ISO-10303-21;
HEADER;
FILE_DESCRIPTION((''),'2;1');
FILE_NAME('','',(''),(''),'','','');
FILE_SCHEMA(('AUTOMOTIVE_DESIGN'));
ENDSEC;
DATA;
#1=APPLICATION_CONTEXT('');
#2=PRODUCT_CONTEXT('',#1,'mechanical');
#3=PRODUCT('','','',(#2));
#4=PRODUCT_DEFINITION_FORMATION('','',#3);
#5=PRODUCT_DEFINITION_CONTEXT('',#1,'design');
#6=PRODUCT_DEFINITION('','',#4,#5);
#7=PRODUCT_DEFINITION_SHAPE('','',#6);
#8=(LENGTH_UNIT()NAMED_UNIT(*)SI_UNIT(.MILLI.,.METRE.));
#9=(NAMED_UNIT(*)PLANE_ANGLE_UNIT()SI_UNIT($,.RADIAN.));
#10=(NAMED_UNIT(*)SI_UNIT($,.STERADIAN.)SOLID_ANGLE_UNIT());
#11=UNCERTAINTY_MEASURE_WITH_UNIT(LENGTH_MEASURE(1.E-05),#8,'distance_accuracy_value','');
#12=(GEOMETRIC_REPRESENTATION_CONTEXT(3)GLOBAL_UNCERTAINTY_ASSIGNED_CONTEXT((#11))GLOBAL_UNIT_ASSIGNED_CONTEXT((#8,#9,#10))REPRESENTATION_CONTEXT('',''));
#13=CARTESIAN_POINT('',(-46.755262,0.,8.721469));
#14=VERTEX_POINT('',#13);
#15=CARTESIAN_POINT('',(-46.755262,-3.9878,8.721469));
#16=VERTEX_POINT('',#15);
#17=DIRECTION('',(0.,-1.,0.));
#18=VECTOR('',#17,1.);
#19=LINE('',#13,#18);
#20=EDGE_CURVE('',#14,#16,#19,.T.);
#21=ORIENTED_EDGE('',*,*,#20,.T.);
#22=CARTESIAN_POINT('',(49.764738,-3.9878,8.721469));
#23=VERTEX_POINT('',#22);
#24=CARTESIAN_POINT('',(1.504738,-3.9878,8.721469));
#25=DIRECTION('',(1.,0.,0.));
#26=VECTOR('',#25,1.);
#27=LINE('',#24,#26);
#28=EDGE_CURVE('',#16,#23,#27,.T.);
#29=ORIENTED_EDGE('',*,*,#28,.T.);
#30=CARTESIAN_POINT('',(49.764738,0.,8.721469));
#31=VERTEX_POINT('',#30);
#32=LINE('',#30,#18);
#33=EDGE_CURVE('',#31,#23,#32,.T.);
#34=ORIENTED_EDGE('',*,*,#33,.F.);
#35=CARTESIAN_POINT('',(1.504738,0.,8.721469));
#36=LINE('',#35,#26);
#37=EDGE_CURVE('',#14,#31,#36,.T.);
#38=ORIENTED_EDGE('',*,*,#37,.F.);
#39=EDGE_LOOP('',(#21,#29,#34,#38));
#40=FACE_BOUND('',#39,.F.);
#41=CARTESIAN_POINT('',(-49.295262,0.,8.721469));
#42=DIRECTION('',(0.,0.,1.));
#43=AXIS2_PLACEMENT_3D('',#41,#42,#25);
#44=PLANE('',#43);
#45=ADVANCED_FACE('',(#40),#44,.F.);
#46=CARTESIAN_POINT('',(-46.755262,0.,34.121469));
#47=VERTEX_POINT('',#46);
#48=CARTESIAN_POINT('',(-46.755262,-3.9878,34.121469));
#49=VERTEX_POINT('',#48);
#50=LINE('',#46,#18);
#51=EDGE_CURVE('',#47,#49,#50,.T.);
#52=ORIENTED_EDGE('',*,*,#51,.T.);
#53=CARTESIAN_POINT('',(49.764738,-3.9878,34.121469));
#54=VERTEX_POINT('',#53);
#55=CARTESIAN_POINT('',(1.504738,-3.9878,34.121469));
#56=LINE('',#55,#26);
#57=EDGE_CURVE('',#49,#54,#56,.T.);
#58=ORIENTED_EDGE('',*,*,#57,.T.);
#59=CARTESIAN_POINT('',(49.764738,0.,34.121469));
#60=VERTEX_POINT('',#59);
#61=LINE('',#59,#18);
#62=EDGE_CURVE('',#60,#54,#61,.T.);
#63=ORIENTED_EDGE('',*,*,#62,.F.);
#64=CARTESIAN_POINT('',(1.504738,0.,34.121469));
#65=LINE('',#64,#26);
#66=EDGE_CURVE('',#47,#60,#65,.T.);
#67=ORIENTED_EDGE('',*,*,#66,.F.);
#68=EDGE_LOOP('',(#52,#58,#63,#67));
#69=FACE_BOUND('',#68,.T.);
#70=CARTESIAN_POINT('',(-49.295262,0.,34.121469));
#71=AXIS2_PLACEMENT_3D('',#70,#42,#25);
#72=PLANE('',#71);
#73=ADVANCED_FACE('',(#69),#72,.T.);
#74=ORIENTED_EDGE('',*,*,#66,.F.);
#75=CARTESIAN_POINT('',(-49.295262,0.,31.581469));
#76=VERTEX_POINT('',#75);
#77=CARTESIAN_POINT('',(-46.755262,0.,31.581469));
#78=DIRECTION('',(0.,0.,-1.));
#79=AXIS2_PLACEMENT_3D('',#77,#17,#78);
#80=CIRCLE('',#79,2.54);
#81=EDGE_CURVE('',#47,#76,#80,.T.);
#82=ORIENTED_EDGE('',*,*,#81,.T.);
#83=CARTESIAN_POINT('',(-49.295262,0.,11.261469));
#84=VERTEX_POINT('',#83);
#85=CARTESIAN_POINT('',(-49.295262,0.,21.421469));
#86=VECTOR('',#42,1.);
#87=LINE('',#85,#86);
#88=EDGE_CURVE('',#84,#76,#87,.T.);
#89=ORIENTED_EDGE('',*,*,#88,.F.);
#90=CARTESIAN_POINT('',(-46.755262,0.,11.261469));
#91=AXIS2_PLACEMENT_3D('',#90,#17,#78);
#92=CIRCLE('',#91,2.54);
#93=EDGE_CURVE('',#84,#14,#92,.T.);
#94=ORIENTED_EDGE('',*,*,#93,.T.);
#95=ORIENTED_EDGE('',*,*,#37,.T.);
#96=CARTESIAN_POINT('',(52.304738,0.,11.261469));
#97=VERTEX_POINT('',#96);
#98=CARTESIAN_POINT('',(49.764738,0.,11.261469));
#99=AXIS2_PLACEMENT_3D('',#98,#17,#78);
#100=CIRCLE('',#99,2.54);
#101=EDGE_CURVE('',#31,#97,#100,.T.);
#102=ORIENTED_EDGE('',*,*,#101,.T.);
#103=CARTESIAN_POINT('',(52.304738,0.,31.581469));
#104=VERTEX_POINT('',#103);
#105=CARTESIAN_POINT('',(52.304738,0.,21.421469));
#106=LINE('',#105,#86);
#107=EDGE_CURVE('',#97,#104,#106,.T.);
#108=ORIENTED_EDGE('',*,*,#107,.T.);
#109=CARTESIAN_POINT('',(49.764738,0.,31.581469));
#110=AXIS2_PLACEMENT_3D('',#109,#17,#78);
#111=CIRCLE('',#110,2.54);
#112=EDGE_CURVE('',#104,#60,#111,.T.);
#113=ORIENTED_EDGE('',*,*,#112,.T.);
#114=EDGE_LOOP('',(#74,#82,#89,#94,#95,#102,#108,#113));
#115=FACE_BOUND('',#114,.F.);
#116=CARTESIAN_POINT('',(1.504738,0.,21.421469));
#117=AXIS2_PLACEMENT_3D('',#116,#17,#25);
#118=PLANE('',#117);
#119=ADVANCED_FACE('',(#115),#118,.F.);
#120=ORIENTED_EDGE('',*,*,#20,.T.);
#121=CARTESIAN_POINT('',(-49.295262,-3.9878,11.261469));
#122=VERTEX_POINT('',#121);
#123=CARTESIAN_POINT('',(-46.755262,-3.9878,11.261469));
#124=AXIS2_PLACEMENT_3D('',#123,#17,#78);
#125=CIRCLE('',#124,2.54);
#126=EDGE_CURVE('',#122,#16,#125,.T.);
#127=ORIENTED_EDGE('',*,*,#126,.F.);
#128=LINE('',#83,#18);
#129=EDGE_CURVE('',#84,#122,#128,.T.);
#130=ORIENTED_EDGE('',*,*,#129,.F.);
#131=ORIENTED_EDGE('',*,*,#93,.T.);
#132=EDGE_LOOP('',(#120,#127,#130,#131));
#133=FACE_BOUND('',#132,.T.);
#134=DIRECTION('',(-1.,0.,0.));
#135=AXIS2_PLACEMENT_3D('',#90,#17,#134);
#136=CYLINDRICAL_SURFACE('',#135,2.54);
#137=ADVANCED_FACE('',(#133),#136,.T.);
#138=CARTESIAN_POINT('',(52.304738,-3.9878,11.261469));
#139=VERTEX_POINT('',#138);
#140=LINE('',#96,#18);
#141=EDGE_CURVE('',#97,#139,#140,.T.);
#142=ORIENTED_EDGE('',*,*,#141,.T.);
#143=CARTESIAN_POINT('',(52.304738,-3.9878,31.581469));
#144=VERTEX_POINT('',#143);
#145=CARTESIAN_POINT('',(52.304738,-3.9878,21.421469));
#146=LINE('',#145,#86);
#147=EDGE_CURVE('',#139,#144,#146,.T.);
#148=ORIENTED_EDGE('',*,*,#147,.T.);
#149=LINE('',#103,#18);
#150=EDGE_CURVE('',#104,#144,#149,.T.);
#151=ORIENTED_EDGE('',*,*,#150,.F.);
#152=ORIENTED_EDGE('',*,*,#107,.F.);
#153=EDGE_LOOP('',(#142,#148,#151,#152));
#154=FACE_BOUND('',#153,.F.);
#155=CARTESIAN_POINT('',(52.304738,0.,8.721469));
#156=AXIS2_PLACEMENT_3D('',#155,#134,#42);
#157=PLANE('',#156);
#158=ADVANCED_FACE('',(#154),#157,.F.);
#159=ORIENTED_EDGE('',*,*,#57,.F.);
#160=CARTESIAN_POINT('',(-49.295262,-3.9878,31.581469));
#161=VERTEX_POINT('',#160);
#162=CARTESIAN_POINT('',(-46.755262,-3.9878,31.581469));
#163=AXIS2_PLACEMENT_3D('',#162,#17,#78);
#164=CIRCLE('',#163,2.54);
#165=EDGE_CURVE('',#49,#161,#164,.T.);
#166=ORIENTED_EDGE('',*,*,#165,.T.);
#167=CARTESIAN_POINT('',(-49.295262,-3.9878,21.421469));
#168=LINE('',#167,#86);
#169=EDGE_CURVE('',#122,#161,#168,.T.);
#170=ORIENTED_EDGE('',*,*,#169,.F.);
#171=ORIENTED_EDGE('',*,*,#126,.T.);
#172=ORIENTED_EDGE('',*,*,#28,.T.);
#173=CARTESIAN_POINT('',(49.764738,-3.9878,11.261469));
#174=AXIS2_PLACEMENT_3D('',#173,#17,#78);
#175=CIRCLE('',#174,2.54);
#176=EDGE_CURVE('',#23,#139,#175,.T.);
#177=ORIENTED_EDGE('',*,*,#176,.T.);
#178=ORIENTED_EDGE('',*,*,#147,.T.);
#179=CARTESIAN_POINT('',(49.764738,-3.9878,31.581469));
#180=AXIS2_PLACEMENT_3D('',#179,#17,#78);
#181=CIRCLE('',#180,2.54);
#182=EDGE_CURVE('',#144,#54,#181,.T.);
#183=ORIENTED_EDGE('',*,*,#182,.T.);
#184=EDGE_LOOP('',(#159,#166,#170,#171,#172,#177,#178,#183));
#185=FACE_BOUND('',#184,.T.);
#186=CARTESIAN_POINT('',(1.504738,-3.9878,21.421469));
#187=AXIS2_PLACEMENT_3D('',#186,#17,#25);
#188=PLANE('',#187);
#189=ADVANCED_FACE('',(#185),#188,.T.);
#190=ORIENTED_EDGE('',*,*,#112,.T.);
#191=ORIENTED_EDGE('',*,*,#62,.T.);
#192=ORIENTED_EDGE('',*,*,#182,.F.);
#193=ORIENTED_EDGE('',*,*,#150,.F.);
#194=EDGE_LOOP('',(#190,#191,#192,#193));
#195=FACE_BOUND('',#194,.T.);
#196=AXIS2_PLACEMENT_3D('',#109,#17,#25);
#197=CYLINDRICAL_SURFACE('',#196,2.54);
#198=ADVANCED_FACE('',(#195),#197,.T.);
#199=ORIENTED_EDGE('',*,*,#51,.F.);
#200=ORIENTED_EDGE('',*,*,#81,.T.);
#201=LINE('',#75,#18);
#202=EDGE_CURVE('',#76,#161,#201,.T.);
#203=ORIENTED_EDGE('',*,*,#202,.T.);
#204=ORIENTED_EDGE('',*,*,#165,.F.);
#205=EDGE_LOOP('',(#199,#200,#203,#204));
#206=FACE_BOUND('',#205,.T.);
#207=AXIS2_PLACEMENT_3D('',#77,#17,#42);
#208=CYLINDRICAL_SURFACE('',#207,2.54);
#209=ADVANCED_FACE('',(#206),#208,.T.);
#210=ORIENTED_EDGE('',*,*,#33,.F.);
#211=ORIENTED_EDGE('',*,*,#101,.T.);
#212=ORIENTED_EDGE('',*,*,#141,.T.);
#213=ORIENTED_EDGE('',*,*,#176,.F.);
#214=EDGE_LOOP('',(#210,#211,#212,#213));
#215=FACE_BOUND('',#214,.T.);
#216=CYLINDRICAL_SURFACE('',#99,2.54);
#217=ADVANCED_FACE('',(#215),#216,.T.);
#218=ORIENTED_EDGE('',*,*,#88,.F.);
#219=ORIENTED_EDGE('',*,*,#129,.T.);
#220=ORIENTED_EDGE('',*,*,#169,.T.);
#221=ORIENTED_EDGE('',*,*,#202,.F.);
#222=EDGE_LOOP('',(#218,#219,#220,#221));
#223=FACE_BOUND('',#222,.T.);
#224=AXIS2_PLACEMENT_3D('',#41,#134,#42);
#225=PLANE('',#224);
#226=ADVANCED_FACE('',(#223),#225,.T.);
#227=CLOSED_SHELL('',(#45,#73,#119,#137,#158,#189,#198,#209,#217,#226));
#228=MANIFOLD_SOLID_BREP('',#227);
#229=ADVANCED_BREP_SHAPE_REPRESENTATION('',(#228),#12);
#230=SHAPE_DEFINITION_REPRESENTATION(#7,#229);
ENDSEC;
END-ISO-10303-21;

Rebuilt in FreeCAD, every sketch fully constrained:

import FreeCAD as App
import Part
import Sketcher
from FreeCAD import Vector
Q = App.Units.Quantity


def edges_at(feature, points):
    """Names of the edges that pass closest to the given points."""
    edges = feature.Shape.Edges
    near = lambda p: min(range(len(edges)), key=lambda i: edges[i].distToShape(Part.Vertex(*p))[0])
    return sorted({f"Edge{near(p) + 1}" for p in points})


def add_polygon(sketch, points):
    """Adds a closed chain of lines whose ends are joined by coincident constraints."""
    first, n = sketch.GeometryCount, len(points)
    for a, b in zip(points, points[1:] + points[:1]):
        sketch.addGeometry(Part.LineSegment(App.Vector(*a, 0), App.Vector(*b, 0)), False)
    for i in range(n):
        sketch.addConstraint(Sketcher.Constraint("Coincident", first + i, 2, first + (i + 1) % n, 1))

doc = App.newDocument("Part")
body = doc.addObject("PartDesign::Body", "Body")

# Sketch on XZ plane
sketch1 = body.newObject("Sketcher::SketchObject", "Sketch")
sketch1.AttachmentSupport = (doc.getObject("XZ_Plane"), [""])
sketch1.MapMode = "FlatFace"
add_polygon(sketch1, [(-49, 34), (-49, 9), (52, 9), (52, 34)])  # lines 0-3
sketch1.addConstraint([
    Sketcher.Constraint("Vertical", 0),
    Sketcher.Constraint("Horizontal", 1),
    Sketcher.Constraint("Vertical", 2),
    Sketcher.Constraint("Horizontal", 3),
    Sketcher.Constraint("DistanceX", 1, 1, 1, 2, Q("4 in")),
    Sketcher.Constraint("DistanceY", 0, 2, 0, 1, Q("1 in")),
    Sketcher.Constraint("DistanceY", -1, 1, 0, 2, Q("8.721469 mm")),
    Sketcher.Constraint("DistanceX", 0, 2, -1, 1, Q("49.295262 mm")),
])
pad1 = body.newObject("PartDesign::Pad", "Pad")
pad1.Profile = sketch1
pad1.Length = Q("0.157 in")
doc.recompute()

fillet = body.newObject("PartDesign::Fillet", "Fillet")
fillet.Base = (pad1, edges_at(pad1, [(-49.295, -1.994, 8.721)]))
fillet.Radius = Q("0.1 in")
doc.recompute()

fillet2 = body.newObject("PartDesign::Fillet", "Fillet001")
fillet2.Base = (fillet, edges_at(fillet, [(52.305, -1.994, 8.721)]))
fillet2.Radius = Q("0.1 in")
doc.recompute()

fillet3 = body.newObject("PartDesign::Fillet", "Fillet002")
fillet3.Base = (fillet2, edges_at(fillet2, [(52.305, -1.994, 34.121)]))
fillet3.Radius = Q("0.1 in")
doc.recompute()

fillet4 = body.newObject("PartDesign::Fillet", "Fillet003")
fillet4.Base = (fillet3, edges_at(fillet3, [(-49.295, -1.994, 34.121)]))
fillet4.Radius = Q("0.1 in")

# Sketch on XY plane
sketch2 = body.newObject("Sketcher::SketchObject", "Sketch001")
sketch2.AttachmentSupport = (doc.getObject("XY_Plane"), [""])
sketch2.MapMode = "FlatFace"
sketch2.addGeometry([
    Part.Circle(Vector(-44.2, -2, 0), Vector(0, 0, 1), 1.6),
    Part.Circle(Vector(47.2, -2, 0), Vector(0, 0, 1), 1.6),
], False)
sketch2.addConstraint([
    Sketcher.Constraint("Equal", 0, 1),
    Sketcher.Constraint("Horizontal", 0, 3, 1, 3),
    Sketcher.Constraint("Diameter", 0, Q("0.125 in")),
    Sketcher.Constraint("DistanceX", 0, 3, 1, 3, Q("3.6 in")),
    Sketcher.Constraint("DistanceY", 0, 3, -1, 1, Q("0.0785 in")),
    Sketcher.Constraint("DistanceX", -1, 1, 1, 3, Q("47.224738 mm")),
])
pocket1 = body.newObject("PartDesign::Pocket", "Pocket")
pocket1.Profile = sketch2
pocket1.Type = "TwoLengths"
pocket1.Length = 8.721469
pocket1.Length2 = Q("0.125 in")
pocket1.Reversed = True

doc.recompute()
